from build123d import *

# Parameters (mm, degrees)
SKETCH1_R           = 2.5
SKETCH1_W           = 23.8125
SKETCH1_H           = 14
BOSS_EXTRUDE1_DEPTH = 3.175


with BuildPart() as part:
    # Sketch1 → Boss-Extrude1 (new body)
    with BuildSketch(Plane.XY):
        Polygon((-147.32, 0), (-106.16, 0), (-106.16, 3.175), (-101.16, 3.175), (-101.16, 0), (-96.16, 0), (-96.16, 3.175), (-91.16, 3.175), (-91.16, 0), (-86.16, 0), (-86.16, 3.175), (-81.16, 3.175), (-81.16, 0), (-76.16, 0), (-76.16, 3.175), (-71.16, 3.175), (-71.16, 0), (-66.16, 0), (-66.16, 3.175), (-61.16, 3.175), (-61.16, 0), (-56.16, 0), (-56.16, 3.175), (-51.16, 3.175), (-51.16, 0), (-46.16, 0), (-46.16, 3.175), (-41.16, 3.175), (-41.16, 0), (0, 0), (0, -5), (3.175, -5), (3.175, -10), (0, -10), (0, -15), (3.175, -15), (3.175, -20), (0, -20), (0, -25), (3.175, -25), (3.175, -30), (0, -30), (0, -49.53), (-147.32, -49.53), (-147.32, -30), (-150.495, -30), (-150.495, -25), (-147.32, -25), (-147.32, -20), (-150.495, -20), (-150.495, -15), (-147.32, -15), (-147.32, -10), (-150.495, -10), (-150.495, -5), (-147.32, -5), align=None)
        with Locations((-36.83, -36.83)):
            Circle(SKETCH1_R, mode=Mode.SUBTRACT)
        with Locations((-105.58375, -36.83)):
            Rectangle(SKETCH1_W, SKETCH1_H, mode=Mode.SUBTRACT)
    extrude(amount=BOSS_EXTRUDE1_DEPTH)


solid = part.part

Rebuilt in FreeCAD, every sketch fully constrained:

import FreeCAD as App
import Part
import Sketcher

V = App.Vector
Q = App.Units.Quantity

doc = App.newDocument("Part")
body = doc.addObject("PartDesign::Body", "Body")

# Sketch on XY plane
sketch1 = body.newObject("Sketcher::SketchObject", "Sketch")
sketch1.AttachmentSupport = (doc.getObject("XY_Plane"), [""])
sketch1.MapMode = "FlatFace"
sketch1.addGeometry([
    Part.LineSegment(V(-106.2, 0, 0), V(-147.3, 0, 0)),  # 0
    Part.LineSegment(V(-147.3, 0, 0), V(-147.3, -5, 0)),  # 1
    Part.LineSegment(V(-147.3, -5, 0), V(-150.5, -5, 0)),  # 2
    Part.LineSegment(V(-150.5, -5, 0), V(-150.5, -10, 0)),  # 3
    Part.LineSegment(V(-150.5, -10, 0), V(-147.3, -10, 0)),  # 4
    Part.LineSegment(V(-147.3, -10, 0), V(-147.3, -15, 0)),  # 5
    Part.LineSegment(V(-147.3, -15, 0), V(-150.5, -15, 0)),  # 6
    Part.LineSegment(V(-150.5, -15, 0), V(-150.5, -20, 0)),  # 7
    Part.LineSegment(V(-150.5, -20, 0), V(-147.3, -20, 0)),  # 8
    Part.LineSegment(V(-147.3, -20, 0), V(-147.3, -25, 0)),  # 9
    Part.LineSegment(V(-147.3, -25, 0), V(-150.5, -25, 0)),  # 10
    Part.LineSegment(V(-150.5, -25, 0), V(-150.5, -30, 0)),  # 11
    Part.LineSegment(V(-150.5, -30, 0), V(-147.3, -30, 0)),  # 12
    Part.LineSegment(V(-147.3, -30, 0), V(-147.3, -49.5, 0)),  # 13
    Part.LineSegment(V(-147.3, -49.5, 0), V(0, -49.5, 0)),  # 14
    Part.LineSegment(V(0, -49.5, 0), V(0, -30, 0)),  # 15
    Part.LineSegment(V(0, -30, 0), V(3.2, -30, 0)),  # 16
    Part.LineSegment(V(3.2, -30, 0), V(3.2, -25, 0)),  # 17
    Part.LineSegment(V(3.2, -25, 0), V(0, -25, 0)),  # 18
    Part.LineSegment(V(0, -25, 0), V(0, -20, 0)),  # 19
    Part.LineSegment(V(0, -20, 0), V(3.2, -20, 0)),  # 20
    Part.LineSegment(V(3.2, -20, 0), V(3.2, -15, 0)),  # 21
    Part.LineSegment(V(3.2, -15, 0), V(0, -15, 0)),  # 22
    Part.LineSegment(V(0, -15, 0), V(0, -10, 0)),  # 23
    Part.LineSegment(V(0, -10, 0), V(3.2, -10, 0)),  # 24
    Part.LineSegment(V(3.2, -10, 0), V(3.2, -5, 0)),  # 25
    Part.LineSegment(V(3.2, -5, 0), V(0, -5, 0)),  # 26
    Part.LineSegment(V(0, -5, 0), V(0, 0, 0)),  # 27
    Part.LineSegment(V(0, 0, 0), V(-41.2, 0, 0)),  # 28
    Part.LineSegment(V(-41.2, 0, 0), V(-41.2, 3.2, 0)),  # 29
    Part.LineSegment(V(-41.2, 3.2, 0), V(-46.2, 3.2, 0)),  # 30
    Part.LineSegment(V(-46.2, 3.2, 0), V(-46.2, 0, 0)),  # 31
    Part.LineSegment(V(-46.2, 0, 0), V(-51.2, 0, 0)),  # 32
    Part.LineSegment(V(-51.2, 0, 0), V(-51.2, 3.2, 0)),  # 33
    Part.LineSegment(V(-51.2, 3.2, 0), V(-56.2, 3.2, 0)),  # 34
    Part.LineSegment(V(-56.2, 3.2, 0), V(-56.2, 0, 0)),  # 35
    Part.LineSegment(V(-56.2, 0, 0), V(-61.2, 0, 0)),  # 36
    Part.LineSegment(V(-61.2, 0, 0), V(-61.2, 3.2, 0)),  # 37
    Part.LineSegment(V(-61.2, 3.2, 0), V(-66.2, 3.2, 0)),  # 38
    Part.LineSegment(V(-66.2, 3.2, 0), V(-66.2, 0, 0)),  # 39
    Part.LineSegment(V(-66.2, 0, 0), V(-71.2, 0, 0)),  # 40
    Part.LineSegment(V(-71.2, 0, 0), V(-71.2, 3.2, 0)),  # 41
    Part.LineSegment(V(-71.2, 3.2, 0), V(-76.2, 3.2, 0)),  # 42
    Part.LineSegment(V(-76.2, 3.2, 0), V(-76.2, 0, 0)),  # 43
    Part.LineSegment(V(-76.2, 0, 0), V(-81.2, 0, 0)),  # 44
    Part.LineSegment(V(-81.2, 0, 0), V(-81.2, 3.2, 0)),  # 45
    Part.LineSegment(V(-81.2, 3.2, 0), V(-86.2, 3.2, 0)),  # 46
    Part.LineSegment(V(-86.2, 3.2, 0), V(-86.2, 0, 0)),  # 47
    Part.LineSegment(V(-86.2, 0, 0), V(-91.2, 0, 0)),  # 48
    Part.LineSegment(V(-91.2, 0, 0), V(-91.2, 3.2, 0)),  # 49
    Part.LineSegment(V(-91.2, 3.2, 0), V(-96.2, 3.2, 0)),  # 50
    Part.LineSegment(V(-96.2, 3.2, 0), V(-96.2, 0, 0)),  # 51
    Part.LineSegment(V(-96.2, 0, 0), V(-101.2, 0, 0)),  # 52
    Part.LineSegment(V(-101.2, 0, 0), V(-101.2, 3.2, 0)),  # 53
    Part.LineSegment(V(-101.2, 3.2, 0), V(-106.2, 3.2, 0)),  # 54
    Part.LineSegment(V(-106.2, 3.2, 0), V(-106.2, 0, 0)),  # 55
    Part.Circle(V(-36.8, -36.8, 0), V(0, 0, 1), 2.5),  # 56
    Part.LineSegment(V(-117.5, -43.8, 0), V(-117.5, -29.8, 0)),  # 57
    Part.LineSegment(V(-117.5, -29.8, 0), V(-93.7, -29.8, 0)),  # 58
    Part.LineSegment(V(-93.7, -29.8, 0), V(-93.7, -43.8, 0)),  # 59
    Part.LineSegment(V(-93.7, -43.8, 0), V(-117.5, -43.8, 0)),  # 60
], False)
sketch1.addConstraint([
    Sketcher.Constraint("Coincident", 0, 2, 1, 1),
    Sketcher.Constraint("Coincident", 1, 2, 2, 1),
    Sketcher.Constraint("Coincident", 2, 2, 3, 1),
    Sketcher.Constraint("Coincident", 3, 2, 4, 1),
    Sketcher.Constraint("Coincident", 4, 2, 5, 1),
    Sketcher.Constraint("Coincident", 5, 2, 6, 1),
    Sketcher.Constraint("Coincident", 6, 2, 7, 1),
    Sketcher.Constraint("Coincident", 7, 2, 8, 1),
    Sketcher.Constraint("Coincident", 8, 2, 9, 1),
    Sketcher.Constraint("Coincident", 9, 2, 10, 1),
    Sketcher.Constraint("Coincident", 10, 2, 11, 1),
    Sketcher.Constraint("Coincident", 11, 2, 12, 1),
    Sketcher.Constraint("Coincident", 12, 2, 13, 1),
    Sketcher.Constraint("Coincident", 13, 2, 14, 1),
    Sketcher.Constraint("Coincident", 14, 2, 15, 1),
    Sketcher.Constraint("Coincident", 15, 2, 16, 1),
    Sketcher.Constraint("Coincident", 16, 2, 17, 1),
    Sketcher.Constraint("Coincident", 17, 2, 18, 1),
    Sketcher.Constraint("Coincident", 18, 2, 19, 1),
    Sketcher.Constraint("Coincident", 19, 2, 20, 1),
    Sketcher.Constraint("Coincident", 20, 2, 21, 1),
    Sketcher.Constraint("Coincident", 21, 2, 22, 1),
    Sketcher.Constraint("Coincident", 22, 2, 23, 1),
    Sketcher.Constraint("Coincident", 23, 2, 24, 1),
    Sketcher.Constraint("Coincident", 24, 2, 25, 1),
    Sketcher.Constraint("Coincident", 25, 2, 26, 1),
    Sketcher.Constraint("Coincident", 26, 2, 27, 1),
    Sketcher.Constraint("Coincident", 27, 2, 28, 1),
    Sketcher.Constraint("Coincident", 28, 2, 29, 1),
    Sketcher.Constraint("Coincident", 29, 2, 30, 1),
    Sketcher.Constraint("Coincident", 30, 2, 31, 1),
    Sketcher.Constraint("Coincident", 31, 2, 32, 1),
    Sketcher.Constraint("Coincident", 32, 2, 33, 1),
    Sketcher.Constraint("Coincident", 33, 2, 34, 1),
    Sketcher.Constraint("Coincident", 34, 2, 35, 1),
    Sketcher.Constraint("Coincident", 35, 2, 36, 1),
    Sketcher.Constraint("Coincident", 36, 2, 37, 1),
    Sketcher.Constraint("Coincident", 37, 2, 38, 1),
    Sketcher.Constraint("Coincident", 38, 2, 39, 1),
    Sketcher.Constraint("Coincident", 39, 2, 40, 1),
    Sketcher.Constraint("Coincident", 40, 2, 41, 1),
    Sketcher.Constraint("Coincident", 41, 2, 42, 1),
    Sketcher.Constraint("Coincident", 42, 2, 43, 1),
    Sketcher.Constraint("Coincident", 43, 2, 44, 1),
    Sketcher.Constraint("Coincident", 44, 2, 45, 1),
    Sketcher.Constraint("Coincident", 45, 2, 46, 1),
    Sketcher.Constraint("Coincident", 46, 2, 47, 1),
    Sketcher.Constraint("Coincident", 47, 2, 48, 1),
    Sketcher.Constraint("Coincident", 48, 2, 49, 1),
    Sketcher.Constraint("Coincident", 49, 2, 50, 1),
    Sketcher.Constraint("Coincident", 50, 2, 51, 1),
    Sketcher.Constraint("Coincident", 51, 2, 52, 1),
    Sketcher.Constraint("Coincident", 52, 2, 53, 1),
    Sketcher.Constraint("Coincident", 53, 2, 54, 1),
    Sketcher.Constraint("Coincident", 54, 2, 55, 1),
    Sketcher.Constraint("Coincident", 55, 2, 0, 1),
    Sketcher.Constraint("Coincident", 57, 2, 58, 1),
    Sketcher.Constraint("Coincident", 58, 2, 59, 1),
    Sketcher.Constraint("Coincident", 59, 2, 60, 1),
    Sketcher.Constraint("Coincident", 60, 2, 57, 1),
    Sketcher.Constraint("Horizontal", 0),
    Sketcher.Constraint("Vertical", 1),
    Sketcher.Constraint("Horizontal", 2),
    Sketcher.Constraint("Vertical", 3),
    Sketcher.Constraint("Horizontal", 4),
    Sketcher.Constraint("Vertical", 5),
    Sketcher.Constraint("Horizontal", 6),
    Sketcher.Constraint("Vertical", 7),
    Sketcher.Constraint("Horizontal", 8),
    Sketcher.Constraint("Vertical", 9),
    Sketcher.Constraint("Horizontal", 10),
    Sketcher.Constraint("Vertical", 11),
    Sketcher.Constraint("Horizontal", 12),
    Sketcher.Constraint("Vertical", 13),
    Sketcher.Constraint("Horizontal", 14),
    Sketcher.Constraint("Vertical", 15),
    Sketcher.Constraint("Horizontal", 16),
    Sketcher.Constraint("Vertical", 17),
    Sketcher.Constraint("Horizontal", 18),
    Sketcher.Constraint("Vertical", 19),
    Sketcher.Constraint("Horizontal", 20),
    Sketcher.Constraint("Vertical", 21),
    Sketcher.Constraint("Horizontal", 22),
    Sketcher.Constraint("Vertical", 23),
    Sketcher.Constraint("Horizontal", 24),
    Sketcher.Constraint("Vertical", 25),
    Sketcher.Constraint("Horizontal", 26),
    Sketcher.Constraint("Vertical", 27),
    Sketcher.Constraint("Horizontal", 28),
    Sketcher.Constraint("Vertical", 29),
    Sketcher.Constraint("Horizontal", 30),
    Sketcher.Constraint("Vertical", 31),
    Sketcher.Constraint("Horizontal", 32),
    Sketcher.Constraint("Vertical", 33),
    Sketcher.Constraint("Horizontal", 34),
    Sketcher.Constraint("Vertical", 35),
    Sketcher.Constraint("Horizontal", 36),
    Sketcher.Constraint("Vertical", 37),
    Sketcher.Constraint("Horizontal", 38),
    Sketcher.Constraint("Vertical", 39),
    Sketcher.Constraint("Horizontal", 40),
    Sketcher.Constraint("Vertical", 41),
    Sketcher.Constraint("Horizontal", 42),
    Sketcher.Constraint("Vertical", 43),
    Sketcher.Constraint("Horizontal", 44),
    Sketcher.Constraint("Vertical", 45),
    Sketcher.Constraint("Horizontal", 46),
    Sketcher.Constraint("Vertical", 47),
    Sketcher.Constraint("Horizontal", 48),
    Sketcher.Constraint("Vertical", 49),
    Sketcher.Constraint("Horizontal", 50),
    Sketcher.Constraint("Vertical", 51),
    Sketcher.Constraint("Horizontal", 52),
    Sketcher.Constraint("Vertical", 53),
    Sketcher.Constraint("Horizontal", 54),
    Sketcher.Constraint("Vertical", 55),
    Sketcher.Constraint("Vertical", 57),
    Sketcher.Constraint("Horizontal", 58),
    Sketcher.Constraint("Vertical", 59),
    Sketcher.Constraint("Horizontal", 60),
    Sketcher.Constraint("Coincident", 27, 2, -1, 1),
    Sketcher.Constraint("PointOnObject", 0, 2, -1),
    Sketcher.Constraint("PointOnObject", 14, 2, -2),
    Sketcher.Constraint("PointOnObject", 18, 2, -2),
    Sketcher.Constraint("PointOnObject", 22, 2, -2),
    Sketcher.Constraint("PointOnObject", 31, 2, -1),
    Sketcher.Constraint("PointOnObject", 35, 2, -1),
    Sketcher.Constraint("PointOnObject", 39, 2, -1),
    Sketcher.Constraint("PointOnObject", 43, 2, -1),
    Sketcher.Constraint("PointOnObject", 47, 2, -1),
    Sketcher.Constraint("PointOnObject", 51, 2, -1),
    Sketcher.Constraint("Horizontal", 12, 2, 15, 2),
    Sketcher.Constraint("Horizontal", 10, 2, 17, 2),
    Sketcher.Constraint("Horizontal", 8, 2, 19, 2),
    Sketcher.Constraint("Horizontal", 6, 2, 21, 2),
    Sketcher.Constraint("Horizontal", 4, 2, 23, 2),
    Sketcher.Constraint("Horizontal", 2, 2, 25, 2),
    Sketcher.Constraint("Horizontal", 30, 2, 33, 2),
    Sketcher.Constraint("Horizontal", 34, 2, 37, 2),
    Sketcher.Constraint("Horizontal", 38, 2, 41, 2),
    Sketcher.Constraint("Horizontal", 42, 2, 45, 2),
    Sketcher.Constraint("Horizontal", 46, 2, 49, 2),
    Sketcher.Constraint("Horizontal", 50, 2, 53, 2),
    Sketcher.Constraint("Vertical", 1, 2, 4, 2),
    Sketcher.Constraint("Vertical", 3, 2, 6, 2),
    Sketcher.Constraint("Vertical", 5, 2, 8, 2),
    Sketcher.Constraint("Vertical", 7, 2, 10, 2),
    Sketcher.Constraint("Vertical", 9, 2, 12, 2),
    Sketcher.Constraint("Vertical", 17, 2, 20, 2),
    Sketcher.Constraint("Vertical", 21, 2, 24, 2),
    Sketcher.Constraint("Equal", 12, 16),
    Sketcher.Constraint("Equal", 0, 28),
    Sketcher.Constraint("Equal", 30, 32),
    Sketcher.Constraint("Equal", 32, 34),
    Sketcher.Constraint("Equal", 34, 36),
    Sketcher.Constraint("Equal", 36, 38),
    Sketcher.Constraint("Equal", 38, 40),
    Sketcher.Constraint("Equal", 40, 42),
    Sketcher.Constraint("Equal", 42, 44),
    Sketcher.Constraint("Equal", 44, 46),
    Sketcher.Constraint("Equal", 46, 48),
    Sketcher.Constraint("Equal", 48, 50),
    Sketcher.Constraint("Equal", 50, 52),
    Sketcher.Constraint("Equal", 52, 54),
    Sketcher.Constraint("Equal", 54, 1),
    Sketcher.Constraint("Equal", 1, 3),
    Sketcher.Constraint("Equal", 3, 5),
    Sketcher.Constraint("Equal", 5, 7),
    Sketcher.Constraint("Equal", 7, 9),
    Sketcher.Constraint("Equal", 9, 11),
    Sketcher.Constraint("Equal", 26, 29),
    Sketcher.Constraint("DistanceX", 14, 1, 14, 2, Q("5.8 in")),
    Sketcher.Constraint("Diameter", 56, 5.0),
    Sketcher.Constraint("DistanceX", 2, 2, 2, 1, Q("0.125 in")),
    Sketcher.Constraint("DistanceX", 58, 1, 58, 2, Q("0.9375 in")),
    Sketcher.Constraint("DistanceX", 56, 3, -1, 1, Q("1.45 in")),
    Sketcher.Constraint("DistanceY", 56, 3, -1, 1, Q("1.45 in")),
    Sketcher.Constraint("DistanceY", 13, 2, -1, 1, Q("1.95 in")),
    Sketcher.Constraint("DistanceX", 0, 2, 0, 1, 41.16),
    Sketcher.Constraint("DistanceY", 57, 1, 57, 2, 14.0),
    Sketcher.Constraint("DistanceX", 57, 2, -1, 1, 117.49),
    Sketcher.Constraint("DistanceY", 57, 2, -1, 1, 29.83),
])
pad1 = body.newObject("PartDesign::Pad", "Pad")
pad1.Profile = sketch1
pad1.Length = Q("0.125 in")

doc.recompute()
